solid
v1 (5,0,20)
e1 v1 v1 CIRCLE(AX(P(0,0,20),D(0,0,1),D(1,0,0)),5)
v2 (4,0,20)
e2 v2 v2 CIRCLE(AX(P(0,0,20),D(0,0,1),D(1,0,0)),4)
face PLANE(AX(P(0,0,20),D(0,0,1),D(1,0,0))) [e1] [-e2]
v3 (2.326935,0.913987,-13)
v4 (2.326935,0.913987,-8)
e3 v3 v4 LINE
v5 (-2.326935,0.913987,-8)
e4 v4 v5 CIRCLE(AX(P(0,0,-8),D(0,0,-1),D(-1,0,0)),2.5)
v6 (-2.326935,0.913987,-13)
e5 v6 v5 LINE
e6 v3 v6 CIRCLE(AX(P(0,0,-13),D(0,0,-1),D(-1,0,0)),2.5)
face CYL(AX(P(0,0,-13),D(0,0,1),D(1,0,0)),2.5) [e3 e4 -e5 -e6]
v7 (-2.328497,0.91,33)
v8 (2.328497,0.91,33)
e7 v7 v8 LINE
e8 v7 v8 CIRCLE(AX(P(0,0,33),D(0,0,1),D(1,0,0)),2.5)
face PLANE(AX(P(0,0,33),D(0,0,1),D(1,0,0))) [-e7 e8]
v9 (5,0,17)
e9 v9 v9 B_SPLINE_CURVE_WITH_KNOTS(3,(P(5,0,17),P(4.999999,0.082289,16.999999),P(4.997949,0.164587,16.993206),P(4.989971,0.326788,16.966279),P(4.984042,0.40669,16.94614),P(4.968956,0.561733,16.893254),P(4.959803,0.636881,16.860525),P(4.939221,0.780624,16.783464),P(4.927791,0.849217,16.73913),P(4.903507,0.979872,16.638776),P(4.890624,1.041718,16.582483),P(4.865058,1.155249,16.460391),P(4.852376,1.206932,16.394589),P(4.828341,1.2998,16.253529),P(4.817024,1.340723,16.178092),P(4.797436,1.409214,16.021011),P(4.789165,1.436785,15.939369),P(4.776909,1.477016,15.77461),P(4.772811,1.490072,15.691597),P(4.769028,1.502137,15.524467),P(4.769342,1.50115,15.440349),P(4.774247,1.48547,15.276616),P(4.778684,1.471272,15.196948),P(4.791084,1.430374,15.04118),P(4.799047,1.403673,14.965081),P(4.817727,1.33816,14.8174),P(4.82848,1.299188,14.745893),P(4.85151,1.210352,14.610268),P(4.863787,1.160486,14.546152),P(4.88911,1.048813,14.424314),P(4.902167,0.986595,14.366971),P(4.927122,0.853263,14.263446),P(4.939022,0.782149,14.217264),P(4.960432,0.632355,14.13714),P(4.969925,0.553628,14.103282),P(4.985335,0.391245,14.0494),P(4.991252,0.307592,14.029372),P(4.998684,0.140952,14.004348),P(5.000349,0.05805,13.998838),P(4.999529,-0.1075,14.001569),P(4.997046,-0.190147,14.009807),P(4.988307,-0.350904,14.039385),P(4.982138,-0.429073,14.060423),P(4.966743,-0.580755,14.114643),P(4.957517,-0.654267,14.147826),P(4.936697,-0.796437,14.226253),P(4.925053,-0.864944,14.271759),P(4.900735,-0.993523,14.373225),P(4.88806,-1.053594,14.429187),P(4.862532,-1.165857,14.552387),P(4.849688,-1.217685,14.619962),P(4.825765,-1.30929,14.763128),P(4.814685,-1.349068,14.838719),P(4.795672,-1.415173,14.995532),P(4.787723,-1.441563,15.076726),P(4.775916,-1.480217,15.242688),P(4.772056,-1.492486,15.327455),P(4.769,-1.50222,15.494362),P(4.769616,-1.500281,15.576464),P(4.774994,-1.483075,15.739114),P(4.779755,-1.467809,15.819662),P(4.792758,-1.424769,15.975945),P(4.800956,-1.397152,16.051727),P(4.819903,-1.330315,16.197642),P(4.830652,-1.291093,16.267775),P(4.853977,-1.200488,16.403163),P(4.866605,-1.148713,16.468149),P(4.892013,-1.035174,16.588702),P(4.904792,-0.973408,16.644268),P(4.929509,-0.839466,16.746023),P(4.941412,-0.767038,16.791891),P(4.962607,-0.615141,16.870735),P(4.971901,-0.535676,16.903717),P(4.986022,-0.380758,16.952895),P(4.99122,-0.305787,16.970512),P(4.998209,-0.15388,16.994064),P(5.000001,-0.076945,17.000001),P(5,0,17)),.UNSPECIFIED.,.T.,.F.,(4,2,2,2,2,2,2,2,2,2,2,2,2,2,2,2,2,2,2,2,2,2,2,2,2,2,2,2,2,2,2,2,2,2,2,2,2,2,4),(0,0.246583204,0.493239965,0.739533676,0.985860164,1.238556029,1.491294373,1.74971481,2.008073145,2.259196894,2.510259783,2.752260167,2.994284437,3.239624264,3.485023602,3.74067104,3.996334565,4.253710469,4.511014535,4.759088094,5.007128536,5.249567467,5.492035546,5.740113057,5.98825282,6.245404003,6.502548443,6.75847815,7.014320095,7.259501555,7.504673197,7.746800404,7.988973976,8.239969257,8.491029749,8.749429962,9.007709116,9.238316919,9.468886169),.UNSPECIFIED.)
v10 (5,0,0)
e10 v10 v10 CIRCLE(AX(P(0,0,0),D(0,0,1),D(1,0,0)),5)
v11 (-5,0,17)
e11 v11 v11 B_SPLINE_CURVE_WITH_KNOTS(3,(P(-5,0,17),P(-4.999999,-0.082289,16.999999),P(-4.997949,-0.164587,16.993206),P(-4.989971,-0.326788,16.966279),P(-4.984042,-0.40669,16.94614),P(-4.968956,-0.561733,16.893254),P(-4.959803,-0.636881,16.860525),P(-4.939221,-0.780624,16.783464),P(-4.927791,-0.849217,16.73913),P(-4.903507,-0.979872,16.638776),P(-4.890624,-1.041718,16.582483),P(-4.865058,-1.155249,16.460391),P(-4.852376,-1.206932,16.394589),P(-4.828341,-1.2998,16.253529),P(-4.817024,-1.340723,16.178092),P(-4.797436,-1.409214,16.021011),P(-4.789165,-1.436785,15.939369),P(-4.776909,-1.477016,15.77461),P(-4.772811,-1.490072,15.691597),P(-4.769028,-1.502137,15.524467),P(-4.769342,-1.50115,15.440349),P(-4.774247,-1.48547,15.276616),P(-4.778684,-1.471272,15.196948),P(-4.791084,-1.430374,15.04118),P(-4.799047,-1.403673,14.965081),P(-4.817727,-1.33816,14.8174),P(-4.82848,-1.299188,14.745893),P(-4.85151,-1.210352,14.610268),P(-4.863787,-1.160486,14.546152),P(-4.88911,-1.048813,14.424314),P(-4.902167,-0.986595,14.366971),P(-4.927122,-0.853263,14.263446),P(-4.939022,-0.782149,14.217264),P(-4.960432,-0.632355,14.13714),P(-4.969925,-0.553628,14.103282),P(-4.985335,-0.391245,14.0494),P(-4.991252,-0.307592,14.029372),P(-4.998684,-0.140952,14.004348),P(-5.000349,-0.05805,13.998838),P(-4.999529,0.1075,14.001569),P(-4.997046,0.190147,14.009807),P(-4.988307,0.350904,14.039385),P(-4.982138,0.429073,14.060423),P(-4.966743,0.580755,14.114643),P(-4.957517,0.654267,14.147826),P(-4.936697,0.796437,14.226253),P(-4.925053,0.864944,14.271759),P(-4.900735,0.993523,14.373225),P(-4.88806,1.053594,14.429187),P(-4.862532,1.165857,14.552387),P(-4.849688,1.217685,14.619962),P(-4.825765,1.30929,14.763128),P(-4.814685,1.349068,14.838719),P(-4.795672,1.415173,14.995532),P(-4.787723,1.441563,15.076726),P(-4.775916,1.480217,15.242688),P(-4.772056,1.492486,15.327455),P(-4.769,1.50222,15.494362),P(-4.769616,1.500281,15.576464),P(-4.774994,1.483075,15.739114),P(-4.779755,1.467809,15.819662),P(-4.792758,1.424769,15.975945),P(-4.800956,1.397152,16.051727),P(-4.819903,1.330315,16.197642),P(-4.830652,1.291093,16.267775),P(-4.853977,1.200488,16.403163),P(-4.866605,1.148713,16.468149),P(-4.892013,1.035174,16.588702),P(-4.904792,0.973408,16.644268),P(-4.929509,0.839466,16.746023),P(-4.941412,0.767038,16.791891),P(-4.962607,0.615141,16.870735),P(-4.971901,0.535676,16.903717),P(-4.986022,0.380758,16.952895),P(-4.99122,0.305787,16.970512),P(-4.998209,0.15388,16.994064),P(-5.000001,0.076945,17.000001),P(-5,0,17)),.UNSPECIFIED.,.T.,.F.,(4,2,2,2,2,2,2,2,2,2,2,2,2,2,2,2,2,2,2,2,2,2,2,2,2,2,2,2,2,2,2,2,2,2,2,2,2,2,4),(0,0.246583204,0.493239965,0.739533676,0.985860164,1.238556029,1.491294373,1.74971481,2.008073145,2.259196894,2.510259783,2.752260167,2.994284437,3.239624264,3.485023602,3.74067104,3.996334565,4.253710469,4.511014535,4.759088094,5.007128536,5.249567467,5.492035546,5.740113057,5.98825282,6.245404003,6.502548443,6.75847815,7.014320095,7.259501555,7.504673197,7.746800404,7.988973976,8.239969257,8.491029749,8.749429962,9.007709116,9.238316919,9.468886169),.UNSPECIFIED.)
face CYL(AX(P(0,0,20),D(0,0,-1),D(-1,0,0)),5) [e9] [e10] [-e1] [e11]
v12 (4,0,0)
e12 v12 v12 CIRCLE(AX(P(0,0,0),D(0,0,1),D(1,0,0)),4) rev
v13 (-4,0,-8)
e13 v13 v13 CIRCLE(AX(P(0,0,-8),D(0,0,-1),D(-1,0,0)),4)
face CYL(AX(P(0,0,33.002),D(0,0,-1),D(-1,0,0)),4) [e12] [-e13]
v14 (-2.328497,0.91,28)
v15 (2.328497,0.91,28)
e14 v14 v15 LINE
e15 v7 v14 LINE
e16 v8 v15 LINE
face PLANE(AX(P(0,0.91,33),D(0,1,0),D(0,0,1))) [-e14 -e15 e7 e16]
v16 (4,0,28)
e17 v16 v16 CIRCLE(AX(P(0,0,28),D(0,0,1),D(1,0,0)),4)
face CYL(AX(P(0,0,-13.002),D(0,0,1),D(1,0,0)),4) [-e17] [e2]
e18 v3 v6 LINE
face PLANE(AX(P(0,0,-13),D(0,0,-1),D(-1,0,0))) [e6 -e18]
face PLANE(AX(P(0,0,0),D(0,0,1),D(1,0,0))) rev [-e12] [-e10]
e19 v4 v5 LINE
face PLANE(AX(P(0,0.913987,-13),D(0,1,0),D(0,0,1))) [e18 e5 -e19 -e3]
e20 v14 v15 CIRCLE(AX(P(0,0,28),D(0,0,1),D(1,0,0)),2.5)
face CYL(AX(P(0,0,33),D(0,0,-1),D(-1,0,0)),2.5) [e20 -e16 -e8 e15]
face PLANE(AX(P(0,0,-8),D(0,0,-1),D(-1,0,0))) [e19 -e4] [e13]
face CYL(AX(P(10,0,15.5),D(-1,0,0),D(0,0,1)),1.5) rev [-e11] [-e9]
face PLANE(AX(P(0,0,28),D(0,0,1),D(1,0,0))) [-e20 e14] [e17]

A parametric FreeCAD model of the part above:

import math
import FreeCAD as App
import Part
import Sketcher

V = App.Vector

doc = App.newDocument("Part")
body = doc.addObject("PartDesign::Body", "Body")

# Sketch on XY plane
sketch1 = body.newObject("Sketcher::SketchObject", "Sketch")
sketch1.AttachmentSupport = (doc.getObject("XY_Plane"), [""])
sketch1.MapMode = "FlatFace"
sketch1.addGeometry(Part.Circle(V(0, 0, 0), V(0, 0, 1), 5), False)
sketch1.addConstraint([
    Sketcher.Constraint("Coincident", 0, 3, -1, 1),
    Sketcher.Constraint("Diameter", 0, 10.0),
])
pad1 = body.newObject("PartDesign::Pad", "Pad")
pad1.Profile = sketch1
pad1.Length = 20

# Sketch on XY plane
sketch2 = body.newObject("Sketcher::SketchObject", "Sketch001")
sketch2.AttachmentSupport = (doc.getObject("XY_Plane"), [""])
sketch2.MapMode = "FlatFace"
sketch2.AttachmentOffset = App.Placement(V(0, 0, 20), App.Rotation())
sketch2.addGeometry(Part.Circle(V(0, 0, 0), V(0, 0, 1), 3.5), False)
sketch2.addConstraint([
    Sketcher.Constraint("Coincident", 0, 3, -1, 1),
    Sketcher.Constraint("Diameter", 0, 7.0),
])
pad2 = body.newObject("PartDesign::Pad", "Pad001")
pad2.Profile = sketch2
pad2.Length = 8

# Sketch on XY plane
sketch3 = body.newObject("Sketcher::SketchObject", "Sketch002")
sketch3.AttachmentSupport = (doc.getObject("XY_Plane"), [""])
sketch3.MapMode = "FlatFace"
sketch3.AttachmentOffset = App.Placement(V(0, 0, -8), App.Rotation())
sketch3.addGeometry(Part.Circle(V(0, 0, 0), V(0, 0, 1), 3.5), False)
sketch3.addConstraint([
    Sketcher.Constraint("Coincident", 0, 3, -1, 1),
    Sketcher.Constraint("Diameter", 0, 7.0),
])
pad3 = body.newObject("PartDesign::Pad", "Pad002")
pad3.Profile = sketch3
pad3.Length = 8

# Sketch on XY plane
sketch4 = body.newObject("Sketcher::SketchObject", "Sketch003")
sketch4.AttachmentSupport = (doc.getObject("XY_Plane"), [""])
sketch4.MapMode = "FlatFace"
sketch4.AttachmentOffset = App.Placement(V(0, 0, -8), App.Rotation())
sketch4.addGeometry([
    Part.LineSegment(V(-2.3, 0.9, 0), V(2.3, 0.9, 0)),
    Part.ArcOfCircle(Part.Circle(V(0, 0, 0), V(0, 0, 1), 2.5), math.radians(180), math.radians(381)),
    Part.ArcOfCircle(Part.Circle(V(0, 0, 0), V(0, 0, 1), 2.5), math.radians(159), math.radians(180)),
], False)
sketch4.addConstraint([
    Sketcher.Constraint("Coincident", 0, 2, 1, 2),
    Sketcher.Constraint("Tangent", 1, 1, 2, 2),
    Sketcher.Constraint("Coincident", 2, 1, 0, 1),
    Sketcher.Constraint("Horizontal", 0),
    Sketcher.Constraint("Coincident", 1, 3, -1, 1),
    Sketcher.Constraint("Equal", 1, 2),
    Sketcher.Constraint("PointOnObject", 1, 1, -1),
    Sketcher.Constraint("Radius", 1, 2.5),
    Sketcher.Constraint("DistanceX", 0, 1, 0, 2, 4.653871),
])
pad4 = body.newObject("PartDesign::Pad", "Pad003")
pad4.Profile = sketch4
pad4.Length = 5
pad4.Reversed = True

# Sketch on XY plane
sketch5 = body.newObject("Sketcher::SketchObject", "Sketch004")
sketch5.AttachmentSupport = (doc.getObject("XY_Plane"), [""])
sketch5.MapMode = "FlatFace"
sketch5.AttachmentOffset = App.Placement(V(0, 0, 33), App.Rotation())
sketch5.addGeometry([
    Part.LineSegment(V(2.3, 0.9, 0), V(-2.3, 0.9, 0)),
    Part.ArcOfCircle(Part.Circle(V(0, 0, 0), V(0, 0, 1), 2.5), math.radians(159), math.radians(360)),
    Part.ArcOfCircle(Part.Circle(V(0, 0, 0), V(0, 0, 1), 2.5), math.radians(0), math.radians(21)),
], False)
sketch5.addConstraint([
    Sketcher.Constraint("Coincident", 0, 2, 1, 1),
    Sketcher.Constraint("Tangent", 1, 2, 2, 1),
    Sketcher.Constraint("Coincident", 2, 2, 0, 1),
    Sketcher.Constraint("Horizontal", 0),
    Sketcher.Constraint("Coincident", 1, 3, -1, 1),
    Sketcher.Constraint("Equal", 1, 2),
    Sketcher.Constraint("PointOnObject", 1, 2, -1),
    Sketcher.Constraint("Radius", 1, 2.5),
    Sketcher.Constraint("DistanceY", -1, 1, 0, 2, 0.91),
])
pad5 = body.newObject("PartDesign::Pad", "Pad004")
pad5.Profile = sketch5
pad5.Length = 5
pad5.Reversed = True

# Sketch on YZ plane
sketch6 = body.newObject("Sketcher::SketchObject", "Sketch005")
sketch6.AttachmentSupport = (doc.getObject("YZ_Plane"), [""])
sketch6.MapMode = "FlatFace"
sketch6.AttachmentOffset = App.Placement(V(0, 0, -5), App.Rotation())
sketch6.addGeometry(Part.Circle(V(0, 15.5, 0), V(0, 0, 1), 1.5), False)
sketch6.addConstraint([
    Sketcher.Constraint("PointOnObject", 0, 3, -2),
    Sketcher.Constraint("Diameter", 0, 3.0),
    Sketcher.Constraint("DistanceY", -1, 1, 0, 3, 15.5),
])
pocket1 = body.newObject("PartDesign::Pocket", "Pocket")
pocket1.Profile = sketch6
pocket1.Length = 15
pocket1.Reversed = True

# Sketch on XY plane
sketch7 = body.newObject("Sketcher::SketchObject", "Sketch006")
sketch7.AttachmentSupport = (doc.getObject("XY_Plane"), [""])
sketch7.MapMode = "FlatFace"
sketch7.AttachmentOffset = App.Placement(V(0, 0, -8), App.Rotation())
sketch7.addGeometry(Part.Circle(V(0, 0, 0), V(0, 0, 1), 4), False)
sketch7.addConstraint([
    Sketcher.Constraint("Coincident", 0, 3, -1, 1),
    Sketcher.Constraint("Diameter", 0, 8.0),
])
pad6 = body.newObject("PartDesign::Pad", "Pad005")
pad6.Profile = sketch7
pad6.Length = 8

# Sketch on XY plane
sketch8 = body.newObject("Sketcher::SketchObject", "Sketch007")
sketch8.AttachmentSupport = (doc.getObject("XY_Plane"), [""])
sketch8.MapMode = "FlatFace"
sketch8.AttachmentOffset = App.Placement(V(0, 0, 28), App.Rotation())
sketch8.addGeometry(Part.Circle(V(0, 0, 0), V(0, 0, 1), 4), False)
sketch8.addConstraint([
    Sketcher.Constraint("Coincident", 0, 3, -1, 1),
    Sketcher.Constraint("Diameter", 0, 8.0),
])
pad7 = body.newObject("PartDesign::Pad", "Pad006")
pad7.Profile = sketch8
pad7.Length = 8
pad7.Reversed = True

doc.recompute()
